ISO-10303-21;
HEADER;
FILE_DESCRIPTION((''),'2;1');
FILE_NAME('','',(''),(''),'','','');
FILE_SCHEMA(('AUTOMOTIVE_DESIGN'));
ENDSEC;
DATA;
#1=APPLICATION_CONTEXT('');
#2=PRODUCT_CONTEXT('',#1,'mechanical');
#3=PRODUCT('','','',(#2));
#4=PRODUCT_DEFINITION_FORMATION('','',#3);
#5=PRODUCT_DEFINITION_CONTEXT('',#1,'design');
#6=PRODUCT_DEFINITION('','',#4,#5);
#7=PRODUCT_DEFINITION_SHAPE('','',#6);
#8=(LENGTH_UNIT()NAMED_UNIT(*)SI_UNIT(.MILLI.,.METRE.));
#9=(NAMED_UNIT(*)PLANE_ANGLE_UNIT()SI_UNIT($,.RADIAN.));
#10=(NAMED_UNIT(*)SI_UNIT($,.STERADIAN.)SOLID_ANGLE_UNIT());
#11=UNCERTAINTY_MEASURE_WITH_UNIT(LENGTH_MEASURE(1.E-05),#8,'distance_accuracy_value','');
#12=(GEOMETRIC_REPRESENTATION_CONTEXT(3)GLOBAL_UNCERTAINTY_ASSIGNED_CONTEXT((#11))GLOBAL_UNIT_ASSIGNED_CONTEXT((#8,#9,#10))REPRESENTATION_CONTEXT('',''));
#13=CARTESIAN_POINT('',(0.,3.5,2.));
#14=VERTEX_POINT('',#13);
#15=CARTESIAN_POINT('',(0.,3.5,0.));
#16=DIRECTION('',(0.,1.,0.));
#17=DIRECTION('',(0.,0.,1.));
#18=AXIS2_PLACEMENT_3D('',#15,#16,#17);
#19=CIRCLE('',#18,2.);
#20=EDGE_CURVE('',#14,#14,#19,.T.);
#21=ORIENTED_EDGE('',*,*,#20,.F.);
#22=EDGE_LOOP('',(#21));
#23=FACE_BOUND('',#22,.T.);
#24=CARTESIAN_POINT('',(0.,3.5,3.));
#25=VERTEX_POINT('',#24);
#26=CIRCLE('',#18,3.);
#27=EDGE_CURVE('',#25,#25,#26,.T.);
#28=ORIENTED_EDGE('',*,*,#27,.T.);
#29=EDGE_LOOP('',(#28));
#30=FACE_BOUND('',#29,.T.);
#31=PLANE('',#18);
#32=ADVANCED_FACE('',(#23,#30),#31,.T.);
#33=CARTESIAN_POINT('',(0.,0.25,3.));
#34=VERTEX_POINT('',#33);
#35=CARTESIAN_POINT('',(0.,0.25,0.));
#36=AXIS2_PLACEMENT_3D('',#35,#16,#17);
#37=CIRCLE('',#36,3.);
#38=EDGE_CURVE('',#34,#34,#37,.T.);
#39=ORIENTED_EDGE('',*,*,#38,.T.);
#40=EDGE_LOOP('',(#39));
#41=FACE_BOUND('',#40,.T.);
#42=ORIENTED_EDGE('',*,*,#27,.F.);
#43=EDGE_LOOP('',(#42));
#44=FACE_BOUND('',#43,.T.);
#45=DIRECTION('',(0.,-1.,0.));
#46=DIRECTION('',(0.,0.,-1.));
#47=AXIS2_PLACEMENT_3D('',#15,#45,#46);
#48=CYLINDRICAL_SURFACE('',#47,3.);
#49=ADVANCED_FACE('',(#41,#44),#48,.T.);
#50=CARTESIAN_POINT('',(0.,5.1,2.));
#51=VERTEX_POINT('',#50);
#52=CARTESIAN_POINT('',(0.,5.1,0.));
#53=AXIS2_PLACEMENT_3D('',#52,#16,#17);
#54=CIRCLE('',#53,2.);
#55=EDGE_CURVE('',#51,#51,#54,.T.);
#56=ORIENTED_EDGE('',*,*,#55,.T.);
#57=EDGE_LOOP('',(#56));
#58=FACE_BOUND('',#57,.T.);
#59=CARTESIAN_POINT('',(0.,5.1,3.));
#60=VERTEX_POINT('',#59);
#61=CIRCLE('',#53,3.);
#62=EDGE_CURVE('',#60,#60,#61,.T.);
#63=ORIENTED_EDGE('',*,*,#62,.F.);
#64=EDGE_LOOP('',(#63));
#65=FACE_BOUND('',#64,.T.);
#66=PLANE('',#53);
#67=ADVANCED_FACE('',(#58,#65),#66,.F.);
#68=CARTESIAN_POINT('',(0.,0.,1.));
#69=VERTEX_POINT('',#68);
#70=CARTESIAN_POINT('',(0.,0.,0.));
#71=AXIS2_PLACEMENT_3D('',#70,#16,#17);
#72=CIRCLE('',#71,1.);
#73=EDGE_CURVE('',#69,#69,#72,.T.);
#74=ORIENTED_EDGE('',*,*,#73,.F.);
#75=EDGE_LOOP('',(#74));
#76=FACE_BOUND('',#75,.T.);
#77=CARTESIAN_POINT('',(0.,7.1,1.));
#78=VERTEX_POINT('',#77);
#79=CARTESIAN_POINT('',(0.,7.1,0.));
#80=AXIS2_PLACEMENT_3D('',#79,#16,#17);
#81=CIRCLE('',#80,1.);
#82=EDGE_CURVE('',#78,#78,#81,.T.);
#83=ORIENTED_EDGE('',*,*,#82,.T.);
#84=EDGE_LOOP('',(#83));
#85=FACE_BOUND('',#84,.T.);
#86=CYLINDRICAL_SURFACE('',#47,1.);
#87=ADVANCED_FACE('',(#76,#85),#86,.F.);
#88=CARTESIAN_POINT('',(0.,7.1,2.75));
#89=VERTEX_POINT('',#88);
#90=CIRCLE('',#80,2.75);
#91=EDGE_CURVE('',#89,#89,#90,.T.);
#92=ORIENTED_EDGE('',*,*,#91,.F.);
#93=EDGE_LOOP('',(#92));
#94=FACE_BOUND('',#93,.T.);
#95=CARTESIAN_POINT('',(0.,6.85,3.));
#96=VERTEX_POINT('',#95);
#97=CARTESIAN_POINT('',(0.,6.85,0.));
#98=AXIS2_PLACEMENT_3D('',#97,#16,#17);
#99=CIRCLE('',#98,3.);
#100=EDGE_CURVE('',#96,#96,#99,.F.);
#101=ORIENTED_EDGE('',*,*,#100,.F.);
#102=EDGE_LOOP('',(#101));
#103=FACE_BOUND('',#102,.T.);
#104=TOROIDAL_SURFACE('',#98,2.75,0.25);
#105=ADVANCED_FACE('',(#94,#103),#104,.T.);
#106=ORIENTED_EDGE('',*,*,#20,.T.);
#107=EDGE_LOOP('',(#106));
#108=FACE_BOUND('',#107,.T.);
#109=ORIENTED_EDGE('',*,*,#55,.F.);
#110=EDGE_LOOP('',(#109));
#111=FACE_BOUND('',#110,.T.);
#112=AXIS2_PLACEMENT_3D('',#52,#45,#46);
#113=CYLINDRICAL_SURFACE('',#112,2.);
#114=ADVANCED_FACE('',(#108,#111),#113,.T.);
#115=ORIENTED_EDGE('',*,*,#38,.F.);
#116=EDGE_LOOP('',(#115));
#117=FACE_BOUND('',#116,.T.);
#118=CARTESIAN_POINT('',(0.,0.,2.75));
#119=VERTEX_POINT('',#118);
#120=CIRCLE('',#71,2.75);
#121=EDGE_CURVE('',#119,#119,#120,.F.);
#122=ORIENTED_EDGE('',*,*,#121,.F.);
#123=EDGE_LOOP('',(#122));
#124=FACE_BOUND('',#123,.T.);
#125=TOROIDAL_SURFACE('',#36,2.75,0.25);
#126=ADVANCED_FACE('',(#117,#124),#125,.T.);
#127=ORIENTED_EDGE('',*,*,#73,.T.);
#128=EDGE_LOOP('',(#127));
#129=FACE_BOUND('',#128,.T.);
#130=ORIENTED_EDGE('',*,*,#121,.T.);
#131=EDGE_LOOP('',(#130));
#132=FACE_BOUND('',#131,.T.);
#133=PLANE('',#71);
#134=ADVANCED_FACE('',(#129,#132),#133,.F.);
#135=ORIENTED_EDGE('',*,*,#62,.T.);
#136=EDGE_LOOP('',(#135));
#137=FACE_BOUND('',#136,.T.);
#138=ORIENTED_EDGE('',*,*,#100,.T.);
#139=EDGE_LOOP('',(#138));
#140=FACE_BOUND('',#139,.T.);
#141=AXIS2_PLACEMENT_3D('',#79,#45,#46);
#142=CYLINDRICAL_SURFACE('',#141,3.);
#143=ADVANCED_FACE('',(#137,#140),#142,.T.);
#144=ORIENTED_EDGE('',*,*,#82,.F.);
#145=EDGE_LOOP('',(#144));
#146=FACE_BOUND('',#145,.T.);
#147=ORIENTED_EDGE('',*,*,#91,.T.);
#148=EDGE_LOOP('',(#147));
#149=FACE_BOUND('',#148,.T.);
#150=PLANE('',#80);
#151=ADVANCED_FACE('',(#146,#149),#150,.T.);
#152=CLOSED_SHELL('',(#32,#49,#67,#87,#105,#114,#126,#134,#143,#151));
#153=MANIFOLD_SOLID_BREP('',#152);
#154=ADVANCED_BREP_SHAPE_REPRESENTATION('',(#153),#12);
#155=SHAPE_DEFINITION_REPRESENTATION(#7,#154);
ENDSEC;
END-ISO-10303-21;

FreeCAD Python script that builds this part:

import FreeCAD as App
import Part
import Sketcher
Q = App.Units.Quantity


def edges_at(feature, points):
    """Names of the edges that pass closest to the given points."""
    edges = feature.Shape.Edges
    near = lambda p: min(range(len(edges)), key=lambda i: edges[i].distToShape(Part.Vertex(*p))[0])
    return sorted({f"Edge{near(p) + 1}" for p in points})

doc = App.newDocument("Part")
body = doc.addObject("PartDesign::Body", "Body")

# Sketch on XZ plane
sketch1 = doc.addObject("Sketcher::SketchObject", "Sketch")
body.addObject(sketch1)
sketch1.AttachmentSupport = (doc.XZ_Plane, [""])
sketch1.MapMode = "FlatFace"
sketch1.addGeometry(Part.Circle(App.Vector(0, 0, 0), App.Vector(0, 0, 1), 3), False)
sketch1.addGeometry(Part.Circle(App.Vector(0, 0, 0), App.Vector(0, 0, 1), 1), False)
sketch1.addConstraint(Sketcher.Constraint("Coincident", 0, 3, -1, 1))
sketch1.addConstraint(Sketcher.Constraint("Coincident", 1, 3, -1, 1))
sketch1.addConstraint(Sketcher.Constraint("Diameter", 0, Q("6 mm")))
sketch1.addConstraint(Sketcher.Constraint("Diameter", 1, Q("2 mm")))
pad1 = doc.addObject("PartDesign::Pad", "Pad")
body.addObject(pad1)
pad1.Profile = sketch1
pad1.Length = 3.5
pad1.Reversed = True

# Sketch on XZ plane
sketch2 = doc.addObject("Sketcher::SketchObject", "Sketch001")
body.addObject(sketch2)
sketch2.AttachmentSupport = (doc.XZ_Plane, [""])
sketch2.MapMode = "FlatFace"
sketch2.AttachmentOffset = App.Placement(App.Vector(0, 0, -3.5), App.Rotation())
sketch2.addGeometry(Part.Circle(App.Vector(0, 0, 0), App.Vector(0, 0, 1), 2), False)
sketch2.addGeometry(Part.Circle(App.Vector(0, 0, 0), App.Vector(0, 0, 1), 1), False)
sketch2.addConstraint(Sketcher.Constraint("Coincident", 0, 3, -1, 1))
sketch2.addConstraint(Sketcher.Constraint("Coincident", 1, 3, -1, 1))
sketch2.addConstraint(Sketcher.Constraint("Diameter", 0, Q("4 mm")))
sketch2.addConstraint(Sketcher.Constraint("Diameter", 1, Q("2 mm")))
pad2 = doc.addObject("PartDesign::Pad", "Pad001")
body.addObject(pad2)
pad2.Profile = sketch2
pad2.Length = 1.6
pad2.Reversed = True

# Sketch on XZ plane
sketch3 = doc.addObject("Sketcher::SketchObject", "Sketch002")
body.addObject(sketch3)
sketch3.AttachmentSupport = (doc.XZ_Plane, [""])
sketch3.MapMode = "FlatFace"
sketch3.AttachmentOffset = App.Placement(App.Vector(0, 0, -5.1), App.Rotation())
sketch3.addGeometry(Part.Circle(App.Vector(0, 0, 0), App.Vector(0, 0, 1), 3), False)
sketch3.addGeometry(Part.Circle(App.Vector(0, 0, 0), App.Vector(0, 0, 1), 1), False)
sketch3.addConstraint(Sketcher.Constraint("Coincident", 0, 3, -1, 1))
sketch3.addConstraint(Sketcher.Constraint("Coincident", 1, 3, -1, 1))
sketch3.addConstraint(Sketcher.Constraint("Diameter", 0, Q("6 mm")))
sketch3.addConstraint(Sketcher.Constraint("Diameter", 1, Q("2 mm")))
pad3 = doc.addObject("PartDesign::Pad", "Pad002")
body.addObject(pad3)
pad3.Profile = sketch3
pad3.Length = 2
pad3.Reversed = True
doc.recompute()

fillet = doc.addObject("PartDesign::Fillet", "Fillet")
body.addObject(fillet)
fillet.Base = (pad3, edges_at(pad3, [(-3, 7.1, 0), (-3, 0, 0)]))
fillet.Radius = 0.25

doc.recompute()
